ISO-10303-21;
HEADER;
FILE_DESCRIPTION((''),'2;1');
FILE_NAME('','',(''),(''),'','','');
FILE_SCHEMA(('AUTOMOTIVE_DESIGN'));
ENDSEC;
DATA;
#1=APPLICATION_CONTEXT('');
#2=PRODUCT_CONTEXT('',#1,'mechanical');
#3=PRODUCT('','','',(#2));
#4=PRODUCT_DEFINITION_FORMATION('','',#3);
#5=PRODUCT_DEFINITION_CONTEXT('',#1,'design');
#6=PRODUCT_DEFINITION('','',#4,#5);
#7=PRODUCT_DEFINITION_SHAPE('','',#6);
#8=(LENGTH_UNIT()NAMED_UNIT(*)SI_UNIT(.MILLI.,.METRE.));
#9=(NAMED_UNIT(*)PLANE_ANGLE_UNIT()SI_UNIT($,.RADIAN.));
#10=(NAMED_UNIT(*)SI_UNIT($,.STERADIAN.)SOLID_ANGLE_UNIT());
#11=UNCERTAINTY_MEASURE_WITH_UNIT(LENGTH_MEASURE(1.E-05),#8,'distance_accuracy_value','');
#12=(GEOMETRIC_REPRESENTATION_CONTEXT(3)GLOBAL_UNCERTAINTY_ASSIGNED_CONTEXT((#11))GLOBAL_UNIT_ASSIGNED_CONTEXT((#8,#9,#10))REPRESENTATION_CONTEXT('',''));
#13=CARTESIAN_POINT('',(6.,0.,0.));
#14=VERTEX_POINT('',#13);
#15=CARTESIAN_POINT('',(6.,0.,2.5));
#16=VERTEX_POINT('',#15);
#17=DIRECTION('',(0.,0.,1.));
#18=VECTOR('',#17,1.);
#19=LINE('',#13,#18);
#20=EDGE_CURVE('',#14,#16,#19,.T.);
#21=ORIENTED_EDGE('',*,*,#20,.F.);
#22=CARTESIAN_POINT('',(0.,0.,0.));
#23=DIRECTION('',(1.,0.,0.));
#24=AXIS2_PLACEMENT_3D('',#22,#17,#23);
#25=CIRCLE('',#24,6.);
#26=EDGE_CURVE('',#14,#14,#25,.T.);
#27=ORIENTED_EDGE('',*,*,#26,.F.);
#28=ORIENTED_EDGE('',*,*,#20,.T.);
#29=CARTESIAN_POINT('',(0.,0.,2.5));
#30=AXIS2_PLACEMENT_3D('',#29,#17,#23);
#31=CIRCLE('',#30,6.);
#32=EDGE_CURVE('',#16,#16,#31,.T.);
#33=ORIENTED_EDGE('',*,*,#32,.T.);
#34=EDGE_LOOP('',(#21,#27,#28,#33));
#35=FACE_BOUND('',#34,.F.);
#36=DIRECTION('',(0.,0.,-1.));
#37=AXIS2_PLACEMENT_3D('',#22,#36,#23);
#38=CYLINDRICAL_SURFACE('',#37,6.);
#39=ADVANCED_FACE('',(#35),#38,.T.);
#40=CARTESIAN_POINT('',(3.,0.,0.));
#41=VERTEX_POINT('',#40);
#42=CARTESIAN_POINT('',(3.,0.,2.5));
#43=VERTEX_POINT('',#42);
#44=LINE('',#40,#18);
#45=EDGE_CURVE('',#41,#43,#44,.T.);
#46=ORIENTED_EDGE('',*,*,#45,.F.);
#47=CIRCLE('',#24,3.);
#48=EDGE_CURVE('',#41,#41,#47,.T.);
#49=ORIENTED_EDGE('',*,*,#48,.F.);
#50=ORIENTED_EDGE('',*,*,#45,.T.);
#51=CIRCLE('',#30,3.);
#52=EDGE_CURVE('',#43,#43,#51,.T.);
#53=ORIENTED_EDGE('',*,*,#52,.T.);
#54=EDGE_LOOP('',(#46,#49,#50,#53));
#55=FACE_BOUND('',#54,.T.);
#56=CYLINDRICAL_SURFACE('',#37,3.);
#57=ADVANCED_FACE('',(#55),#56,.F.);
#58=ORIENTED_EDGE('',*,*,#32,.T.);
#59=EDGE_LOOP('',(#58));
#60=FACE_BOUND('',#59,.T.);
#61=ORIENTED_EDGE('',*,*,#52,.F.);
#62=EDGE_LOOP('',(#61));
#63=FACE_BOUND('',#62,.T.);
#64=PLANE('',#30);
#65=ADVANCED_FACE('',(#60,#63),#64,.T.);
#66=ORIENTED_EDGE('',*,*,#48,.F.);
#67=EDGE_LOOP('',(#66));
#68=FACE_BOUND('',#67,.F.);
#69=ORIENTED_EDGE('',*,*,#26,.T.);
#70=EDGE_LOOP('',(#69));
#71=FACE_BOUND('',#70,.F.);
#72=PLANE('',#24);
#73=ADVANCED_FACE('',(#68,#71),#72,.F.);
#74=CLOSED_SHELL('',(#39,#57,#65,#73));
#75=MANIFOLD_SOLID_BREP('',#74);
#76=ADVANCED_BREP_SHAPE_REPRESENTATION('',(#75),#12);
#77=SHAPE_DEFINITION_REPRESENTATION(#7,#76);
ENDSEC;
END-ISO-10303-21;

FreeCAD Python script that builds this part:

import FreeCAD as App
import Part
import Sketcher
from FreeCAD import Vector

doc = App.newDocument("Part")
params = doc.addObject("Spreadsheet::Sheet", "Params")
for row, (alias, value) in enumerate([
    ("sketch1_diameter", "12 mm"),
    ("sketch1_diameter2", "6 mm"),
    ("pad1_length", "2.5 mm"),
], start=1):
    params.set(f"A{row}", alias)
    params.set(f"B{row}", "=" + value)
    params.setAlias(f"B{row}", alias)

body = doc.addObject("PartDesign::Body", "Body")

# Sketch on XY plane
sketch1 = body.newObject("Sketcher::SketchObject", "Sketch")
sketch1.AttachmentSupport = (doc.getObject("XY_Plane"), [""])
sketch1.MapMode = "FlatFace"
sketch1.addGeometry([
    Part.Circle(Vector(0, 0, 0), Vector(0, 0, 1), 6),
    Part.Circle(Vector(0, 0, 0), Vector(0, 0, 1), 3),
], False)
sketch1.addConstraint([
    Sketcher.Constraint("Coincident", 0, 3, -1, 1),
    Sketcher.Constraint("Coincident", 1, 3, -1, 1),
    Sketcher.Constraint("Diameter", 0, 12.0),
    Sketcher.Constraint("Diameter", 1, 6.0),
])
sketch1.setExpression("Constraints[2]", "Params.sketch1_diameter")
sketch1.setExpression("Constraints[3]", "Params.sketch1_diameter2")
pad1 = body.newObject("PartDesign::Pad", "Pad")
pad1.Profile = sketch1
pad1.setExpression("Length", "Params.pad1_length")

doc.recompute()
